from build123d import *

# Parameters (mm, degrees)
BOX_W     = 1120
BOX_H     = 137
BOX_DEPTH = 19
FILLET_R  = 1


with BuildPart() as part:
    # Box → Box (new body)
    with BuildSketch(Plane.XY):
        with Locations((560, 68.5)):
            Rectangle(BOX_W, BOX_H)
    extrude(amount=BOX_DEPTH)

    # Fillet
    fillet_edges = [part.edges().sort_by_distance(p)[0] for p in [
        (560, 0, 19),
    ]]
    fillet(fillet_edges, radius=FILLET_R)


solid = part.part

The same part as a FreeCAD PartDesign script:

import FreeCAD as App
import Part
import Sketcher

V = App.Vector
Q = App.Units.Quantity


def edges_at(feature, points):
    """Names of the edges that pass closest to the given points."""
    edges = feature.Shape.Edges
    near = lambda p: min(range(len(edges)), key=lambda i: edges[i].distToShape(Part.Vertex(*p))[0])
    return sorted({f"Edge{near(p) + 1}" for p in points})


def add_polygon(sketch, points):
    """Adds a closed chain of lines whose ends are joined by coincident constraints."""
    first, n = sketch.GeometryCount, len(points)
    for a, b in zip(points, points[1:] + points[:1]):
        sketch.addGeometry(Part.LineSegment(App.Vector(*a, 0), App.Vector(*b, 0)), False)
    for i in range(n):
        sketch.addConstraint(Sketcher.Constraint("Coincident", first + i, 2, first + (i + 1) % n, 1))

doc = App.newDocument("Part")
body = doc.addObject("PartDesign::Body", "Body")

# Sketch on XY plane
sketch1 = doc.addObject("Sketcher::SketchObject", "Sketch")
body.addObject(sketch1)
sketch1.AttachmentSupport = (doc.XY_Plane, [""])
sketch1.MapMode = "FlatFace"
add_polygon(sketch1, [(0, 137), (0, 0), (1120, 0), (1120, 137)])  # lines 0-3
sketch1.addConstraint([
    Sketcher.Constraint("Vertical", 0),
    Sketcher.Constraint("Horizontal", 1),
    Sketcher.Constraint("Vertical", 2),
    Sketcher.Constraint("Horizontal", 3),
    Sketcher.Constraint("Coincident", 0, 2, -1, 1),
    Sketcher.Constraint("DistanceX", 1, 1, 1, 2, Q("1120 mm")),
    Sketcher.Constraint("DistanceY", 0, 2, 0, 1, Q("137 mm")),
])
pad1 = doc.addObject("PartDesign::Pad", "Pad")
body.addObject(pad1)
pad1.Profile = sketch1
pad1.Length = 19
doc.recompute()

fillet = doc.addObject("PartDesign::Fillet", "Fillet")
body.addObject(fillet)
fillet.Base = (pad1, edges_at(pad1, [(560, 0, 19)]))
fillet.Radius = 1

doc.recompute()
